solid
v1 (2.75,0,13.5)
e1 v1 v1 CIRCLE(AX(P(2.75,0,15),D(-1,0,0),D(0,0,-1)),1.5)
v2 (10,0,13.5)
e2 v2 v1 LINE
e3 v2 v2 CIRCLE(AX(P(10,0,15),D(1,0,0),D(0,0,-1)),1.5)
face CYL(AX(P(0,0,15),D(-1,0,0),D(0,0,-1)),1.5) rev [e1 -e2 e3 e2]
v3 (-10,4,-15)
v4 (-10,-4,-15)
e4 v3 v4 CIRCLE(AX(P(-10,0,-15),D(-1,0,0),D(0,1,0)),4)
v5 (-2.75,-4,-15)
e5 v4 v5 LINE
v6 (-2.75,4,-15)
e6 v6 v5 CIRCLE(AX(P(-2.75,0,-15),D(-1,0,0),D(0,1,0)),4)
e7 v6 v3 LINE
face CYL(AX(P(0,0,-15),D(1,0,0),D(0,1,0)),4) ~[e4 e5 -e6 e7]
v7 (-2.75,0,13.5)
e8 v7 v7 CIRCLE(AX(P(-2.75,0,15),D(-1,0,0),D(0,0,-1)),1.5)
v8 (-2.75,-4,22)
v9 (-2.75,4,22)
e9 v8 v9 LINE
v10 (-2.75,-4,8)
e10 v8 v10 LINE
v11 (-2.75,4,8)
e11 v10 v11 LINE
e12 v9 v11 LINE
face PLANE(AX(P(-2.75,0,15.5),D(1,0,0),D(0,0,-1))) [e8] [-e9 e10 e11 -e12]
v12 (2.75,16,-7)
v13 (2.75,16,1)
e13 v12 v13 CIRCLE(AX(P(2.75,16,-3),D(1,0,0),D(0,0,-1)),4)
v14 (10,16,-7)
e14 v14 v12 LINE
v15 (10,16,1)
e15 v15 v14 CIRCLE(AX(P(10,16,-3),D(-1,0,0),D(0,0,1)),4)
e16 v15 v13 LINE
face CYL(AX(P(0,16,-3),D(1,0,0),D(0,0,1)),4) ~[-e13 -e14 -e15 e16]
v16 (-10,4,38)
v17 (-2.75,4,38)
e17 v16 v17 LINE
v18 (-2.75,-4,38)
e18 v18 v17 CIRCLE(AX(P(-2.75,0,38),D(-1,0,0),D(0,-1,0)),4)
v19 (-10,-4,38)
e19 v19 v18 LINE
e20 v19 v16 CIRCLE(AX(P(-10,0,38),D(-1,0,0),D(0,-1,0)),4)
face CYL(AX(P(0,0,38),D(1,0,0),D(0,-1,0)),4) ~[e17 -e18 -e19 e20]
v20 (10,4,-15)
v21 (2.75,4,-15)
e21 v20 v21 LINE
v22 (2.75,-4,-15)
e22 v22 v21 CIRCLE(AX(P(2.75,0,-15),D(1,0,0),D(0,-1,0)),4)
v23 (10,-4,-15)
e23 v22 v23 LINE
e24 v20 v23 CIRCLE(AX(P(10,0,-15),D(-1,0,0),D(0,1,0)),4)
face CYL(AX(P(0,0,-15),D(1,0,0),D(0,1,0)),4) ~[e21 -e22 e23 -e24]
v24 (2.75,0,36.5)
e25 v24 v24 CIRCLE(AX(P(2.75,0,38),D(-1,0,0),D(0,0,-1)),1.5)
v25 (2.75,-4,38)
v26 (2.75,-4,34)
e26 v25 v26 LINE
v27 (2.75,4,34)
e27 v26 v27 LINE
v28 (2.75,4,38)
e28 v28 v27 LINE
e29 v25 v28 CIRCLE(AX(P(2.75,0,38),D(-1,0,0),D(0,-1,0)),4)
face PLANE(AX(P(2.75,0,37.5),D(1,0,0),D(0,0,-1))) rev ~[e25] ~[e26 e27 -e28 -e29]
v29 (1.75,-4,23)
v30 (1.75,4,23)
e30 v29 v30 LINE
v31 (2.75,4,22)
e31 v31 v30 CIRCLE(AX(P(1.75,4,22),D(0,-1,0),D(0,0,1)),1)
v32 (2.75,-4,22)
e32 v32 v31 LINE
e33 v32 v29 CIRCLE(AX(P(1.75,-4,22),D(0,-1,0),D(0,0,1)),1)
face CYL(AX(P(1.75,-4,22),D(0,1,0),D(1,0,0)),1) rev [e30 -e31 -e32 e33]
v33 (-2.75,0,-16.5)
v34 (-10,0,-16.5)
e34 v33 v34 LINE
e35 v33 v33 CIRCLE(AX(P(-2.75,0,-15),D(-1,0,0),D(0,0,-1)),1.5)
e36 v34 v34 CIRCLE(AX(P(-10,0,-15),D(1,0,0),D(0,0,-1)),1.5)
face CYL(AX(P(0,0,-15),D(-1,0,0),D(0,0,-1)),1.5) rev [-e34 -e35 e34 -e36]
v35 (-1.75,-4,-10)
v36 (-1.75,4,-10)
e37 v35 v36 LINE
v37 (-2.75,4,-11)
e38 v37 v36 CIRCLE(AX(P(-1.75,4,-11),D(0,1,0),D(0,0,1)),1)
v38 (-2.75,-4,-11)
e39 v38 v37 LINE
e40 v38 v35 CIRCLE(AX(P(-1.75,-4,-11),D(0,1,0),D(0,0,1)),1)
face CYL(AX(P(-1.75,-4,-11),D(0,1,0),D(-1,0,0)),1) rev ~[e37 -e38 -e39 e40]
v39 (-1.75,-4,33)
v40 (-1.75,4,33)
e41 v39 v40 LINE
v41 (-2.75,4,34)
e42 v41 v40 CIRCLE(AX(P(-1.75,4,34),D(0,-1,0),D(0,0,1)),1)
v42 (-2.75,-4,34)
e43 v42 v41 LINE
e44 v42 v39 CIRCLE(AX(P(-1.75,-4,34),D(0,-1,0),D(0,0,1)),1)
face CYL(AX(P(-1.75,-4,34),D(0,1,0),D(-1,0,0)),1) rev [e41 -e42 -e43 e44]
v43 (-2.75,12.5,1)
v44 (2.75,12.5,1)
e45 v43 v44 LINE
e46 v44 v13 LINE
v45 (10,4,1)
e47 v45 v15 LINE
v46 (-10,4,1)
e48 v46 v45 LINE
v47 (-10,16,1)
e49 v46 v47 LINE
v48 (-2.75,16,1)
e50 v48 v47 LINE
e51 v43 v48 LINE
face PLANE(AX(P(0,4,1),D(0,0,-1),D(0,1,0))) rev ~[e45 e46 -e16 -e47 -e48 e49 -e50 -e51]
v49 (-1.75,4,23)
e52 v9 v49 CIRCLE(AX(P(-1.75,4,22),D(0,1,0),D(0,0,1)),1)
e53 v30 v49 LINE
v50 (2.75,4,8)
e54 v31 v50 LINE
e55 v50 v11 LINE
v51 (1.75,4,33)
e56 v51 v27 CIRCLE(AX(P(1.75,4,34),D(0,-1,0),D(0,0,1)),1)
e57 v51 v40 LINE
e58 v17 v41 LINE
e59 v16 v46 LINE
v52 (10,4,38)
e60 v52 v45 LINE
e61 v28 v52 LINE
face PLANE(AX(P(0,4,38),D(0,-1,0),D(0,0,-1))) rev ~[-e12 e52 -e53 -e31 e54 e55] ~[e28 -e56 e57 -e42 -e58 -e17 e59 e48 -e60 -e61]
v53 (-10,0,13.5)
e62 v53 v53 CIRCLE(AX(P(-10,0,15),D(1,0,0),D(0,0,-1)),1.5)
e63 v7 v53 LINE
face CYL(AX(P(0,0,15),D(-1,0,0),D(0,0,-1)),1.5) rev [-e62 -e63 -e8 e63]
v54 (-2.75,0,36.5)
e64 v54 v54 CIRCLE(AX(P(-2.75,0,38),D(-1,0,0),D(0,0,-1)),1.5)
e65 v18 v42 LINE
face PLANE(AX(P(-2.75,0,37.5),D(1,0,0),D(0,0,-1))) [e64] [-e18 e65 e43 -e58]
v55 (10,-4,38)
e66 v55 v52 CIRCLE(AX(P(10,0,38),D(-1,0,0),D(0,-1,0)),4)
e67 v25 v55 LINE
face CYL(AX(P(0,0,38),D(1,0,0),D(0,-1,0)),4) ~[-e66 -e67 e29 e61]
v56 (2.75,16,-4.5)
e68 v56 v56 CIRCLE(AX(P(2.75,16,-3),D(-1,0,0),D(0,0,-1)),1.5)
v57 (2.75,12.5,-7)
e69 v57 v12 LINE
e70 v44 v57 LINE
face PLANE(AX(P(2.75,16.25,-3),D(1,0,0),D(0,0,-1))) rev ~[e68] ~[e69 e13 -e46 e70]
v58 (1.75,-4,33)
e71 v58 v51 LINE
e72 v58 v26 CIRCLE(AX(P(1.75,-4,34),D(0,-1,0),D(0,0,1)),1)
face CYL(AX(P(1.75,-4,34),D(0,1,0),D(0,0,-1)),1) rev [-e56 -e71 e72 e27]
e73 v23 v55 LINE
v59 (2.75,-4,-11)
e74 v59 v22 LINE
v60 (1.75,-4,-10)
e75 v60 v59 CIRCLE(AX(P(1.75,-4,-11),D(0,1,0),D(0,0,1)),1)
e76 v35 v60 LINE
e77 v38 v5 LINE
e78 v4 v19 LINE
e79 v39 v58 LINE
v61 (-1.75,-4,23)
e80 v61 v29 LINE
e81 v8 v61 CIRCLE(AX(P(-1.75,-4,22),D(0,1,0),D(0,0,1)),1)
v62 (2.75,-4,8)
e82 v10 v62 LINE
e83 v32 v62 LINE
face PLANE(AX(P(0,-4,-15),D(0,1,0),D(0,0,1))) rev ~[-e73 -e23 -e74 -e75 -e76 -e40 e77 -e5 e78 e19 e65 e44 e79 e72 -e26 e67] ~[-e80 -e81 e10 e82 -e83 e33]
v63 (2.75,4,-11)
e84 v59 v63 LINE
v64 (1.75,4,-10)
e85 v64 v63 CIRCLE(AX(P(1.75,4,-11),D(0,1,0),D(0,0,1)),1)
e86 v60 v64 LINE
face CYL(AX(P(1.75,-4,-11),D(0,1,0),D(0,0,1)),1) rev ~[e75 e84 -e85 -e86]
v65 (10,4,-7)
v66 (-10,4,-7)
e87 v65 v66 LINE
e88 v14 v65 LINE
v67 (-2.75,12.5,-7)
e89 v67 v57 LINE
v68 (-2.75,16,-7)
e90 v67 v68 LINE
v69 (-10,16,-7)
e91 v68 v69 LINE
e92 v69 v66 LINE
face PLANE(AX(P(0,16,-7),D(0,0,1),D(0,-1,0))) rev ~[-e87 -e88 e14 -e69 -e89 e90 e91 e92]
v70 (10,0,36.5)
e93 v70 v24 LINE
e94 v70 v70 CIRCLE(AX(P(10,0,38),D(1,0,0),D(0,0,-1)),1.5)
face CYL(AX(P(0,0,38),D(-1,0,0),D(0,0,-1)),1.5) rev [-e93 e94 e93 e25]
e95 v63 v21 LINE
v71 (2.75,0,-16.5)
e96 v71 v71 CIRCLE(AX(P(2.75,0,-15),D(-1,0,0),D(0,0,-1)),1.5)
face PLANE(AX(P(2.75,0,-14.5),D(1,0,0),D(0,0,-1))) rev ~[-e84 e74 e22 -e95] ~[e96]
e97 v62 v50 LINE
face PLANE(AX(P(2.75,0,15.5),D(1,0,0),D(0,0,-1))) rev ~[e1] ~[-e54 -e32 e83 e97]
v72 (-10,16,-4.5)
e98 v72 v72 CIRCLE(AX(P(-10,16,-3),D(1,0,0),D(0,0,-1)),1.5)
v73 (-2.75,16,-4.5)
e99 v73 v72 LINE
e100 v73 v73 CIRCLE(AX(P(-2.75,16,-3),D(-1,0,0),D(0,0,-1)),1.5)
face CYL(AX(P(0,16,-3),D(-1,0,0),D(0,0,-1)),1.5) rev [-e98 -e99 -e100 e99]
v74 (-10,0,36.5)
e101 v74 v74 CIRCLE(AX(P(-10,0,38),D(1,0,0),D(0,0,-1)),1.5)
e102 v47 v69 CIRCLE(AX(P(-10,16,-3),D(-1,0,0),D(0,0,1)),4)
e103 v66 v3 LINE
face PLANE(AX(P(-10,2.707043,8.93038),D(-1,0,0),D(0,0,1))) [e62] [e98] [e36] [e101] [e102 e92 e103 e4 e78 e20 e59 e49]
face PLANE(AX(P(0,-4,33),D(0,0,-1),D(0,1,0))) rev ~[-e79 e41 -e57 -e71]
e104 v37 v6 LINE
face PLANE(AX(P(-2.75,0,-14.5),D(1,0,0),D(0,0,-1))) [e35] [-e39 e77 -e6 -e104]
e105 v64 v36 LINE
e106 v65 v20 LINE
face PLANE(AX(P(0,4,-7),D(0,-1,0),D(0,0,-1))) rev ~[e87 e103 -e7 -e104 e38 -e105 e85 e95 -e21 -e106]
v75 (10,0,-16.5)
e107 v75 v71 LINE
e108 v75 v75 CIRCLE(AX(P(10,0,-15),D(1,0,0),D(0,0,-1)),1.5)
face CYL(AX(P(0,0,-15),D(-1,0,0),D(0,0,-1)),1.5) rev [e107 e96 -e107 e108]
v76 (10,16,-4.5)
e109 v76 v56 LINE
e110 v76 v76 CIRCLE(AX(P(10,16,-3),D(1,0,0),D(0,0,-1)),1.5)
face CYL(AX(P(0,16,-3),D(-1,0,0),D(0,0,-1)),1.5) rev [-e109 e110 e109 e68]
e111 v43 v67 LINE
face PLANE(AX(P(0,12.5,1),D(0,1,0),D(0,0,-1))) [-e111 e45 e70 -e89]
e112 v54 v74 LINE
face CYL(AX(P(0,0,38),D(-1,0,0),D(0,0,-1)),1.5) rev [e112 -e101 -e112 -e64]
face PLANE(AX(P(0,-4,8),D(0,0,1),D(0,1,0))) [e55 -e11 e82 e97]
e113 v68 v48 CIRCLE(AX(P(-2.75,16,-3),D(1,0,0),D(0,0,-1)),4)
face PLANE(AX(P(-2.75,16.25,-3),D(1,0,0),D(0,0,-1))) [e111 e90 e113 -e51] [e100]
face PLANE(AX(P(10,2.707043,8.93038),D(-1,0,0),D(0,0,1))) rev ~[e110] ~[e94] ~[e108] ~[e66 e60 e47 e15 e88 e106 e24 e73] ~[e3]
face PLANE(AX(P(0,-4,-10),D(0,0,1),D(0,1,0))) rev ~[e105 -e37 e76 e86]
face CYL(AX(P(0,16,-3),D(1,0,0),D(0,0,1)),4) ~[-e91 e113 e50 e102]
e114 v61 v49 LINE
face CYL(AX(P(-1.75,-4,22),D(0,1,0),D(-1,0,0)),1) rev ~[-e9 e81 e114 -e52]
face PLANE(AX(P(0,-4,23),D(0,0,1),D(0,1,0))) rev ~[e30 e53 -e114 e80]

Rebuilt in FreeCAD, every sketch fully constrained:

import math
import FreeCAD as App
import Part
import Sketcher

V = App.Vector
Q = App.Units.Quantity


def edges_at(feature, points):
    """Names of the edges that pass closest to the given points."""
    edges = feature.Shape.Edges
    near = lambda p: min(range(len(edges)), key=lambda i: edges[i].distToShape(Part.Vertex(*p))[0])
    return sorted({f"Edge{near(p) + 1}" for p in points})

doc = App.newDocument("Part")
body = doc.addObject("PartDesign::Body", "Body")

sketch1 = doc.addObject("Sketcher::SketchObject", "Sketch")
body.addObject(sketch1)
sketch1.AttachmentSupport = (doc.YZ_Plane, [""])
sketch1.MapMode = "FlatFace"
sketch1.addGeometry([
    Part.LineSegment(V(16, 1, 0), V(4, 1, 0)),
    Part.LineSegment(V(4, 1, 0), V(4, 38, 0)),
    Part.ArcOfCircle(Part.Circle(V(0, 38, 0), V(0, 0, 1), 4), math.radians(0), math.radians(180)),
    Part.LineSegment(V(-4, 38, 0), V(-4, -15, 0)),
    Part.ArcOfCircle(Part.Circle(V(0, -15, 0), V(0, 0, 1), 4), math.radians(180), math.radians(360)),
    Part.LineSegment(V(4, -15, 0), V(4, -7, 0)),
    Part.LineSegment(V(4, -7, 0), V(16, -7, 0)),
    Part.ArcOfCircle(Part.Circle(V(16, -3, 0), V(0, 0, 1), 4), math.radians(-90), math.radians(90)),
    Part.Circle(V(0, -15, 0), V(0, 0, 1), 1.5),
    Part.Circle(V(0, 15, 0), V(0, 0, 1), 1.5),
    Part.Circle(V(0, 38, 0), V(0, 0, 1), 1.5),
    Part.Circle(V(16, -3, 0), V(0, 0, 1), 1.5),
], False)
sketch1.addConstraint([
    Sketcher.Constraint("Coincident", 0, 2, 1, 1),
    Sketcher.Constraint("Tangent", 1, 2, 2, 1),
    Sketcher.Constraint("Tangent", 2, 2, 3, 1),
    Sketcher.Constraint("Tangent", 3, 2, 4, 1),
    Sketcher.Constraint("Tangent", 4, 2, 5, 1),
    Sketcher.Constraint("Coincident", 5, 2, 6, 1),
    Sketcher.Constraint("Tangent", 6, 2, 7, 1),
    Sketcher.Constraint("Tangent", 7, 2, 0, 1),
    Sketcher.Constraint("Horizontal", 0),
    Sketcher.Constraint("Vertical", 1),
    Sketcher.Constraint("Vertical", 3),
    Sketcher.Constraint("Vertical", 5),
    Sketcher.Constraint("Horizontal", 6),
    Sketcher.Constraint("Coincident", 8, 3, 4, 3),
    Sketcher.Constraint("Coincident", 10, 3, 2, 3),
    Sketcher.Constraint("Coincident", 11, 3, 7, 3),
    Sketcher.Constraint("Equal", 2, 4),
    Sketcher.Constraint("Equal", 4, 7),
    Sketcher.Constraint("Equal", 8, 9),
    Sketcher.Constraint("Equal", 9, 10),
    Sketcher.Constraint("Equal", 10, 11),
    Sketcher.Constraint("Symmetric", 4, 3, 9, 3, -1, 1),
    Sketcher.Constraint("PointOnObject", 2, 3, -2),
    Sketcher.Constraint("Diameter", 8, Q("3 mm")),
    Sketcher.Constraint("Radius", 2, Q("4 mm")),
    Sketcher.Constraint("DistanceX", 0, 2, 0, 1, Q("12 mm")),
    Sketcher.Constraint("DistanceY", 1, 1, 1, 2, Q("37 mm")),
    Sketcher.Constraint("DistanceY", 3, 2, 3, 1, Q("53 mm")),
    Sketcher.Constraint("DistanceY", -1, 1, 2, 3, Q("38 mm")),
])
pad1 = doc.addObject("PartDesign::Pad", "Pad")
body.addObject(pad1)
pad1.Profile = sketch1
pad1.Length = 20
pad1.Midplane = True

sketch2 = doc.addObject("Sketcher::SketchObject", "Sketch001")
body.addObject(sketch2)
sketch2.AttachmentSupport = (doc.YZ_Plane, [""])
sketch2.MapMode = "FlatFace"
sketch2.addGeometry([
    Part.LineSegment(V(20, 1, 0), V(12.5, 1, 0)),
    Part.LineSegment(V(12.5, 1, 0), V(12.5, -7, 0)),
    Part.LineSegment(V(12.5, -7, 0), V(20, -7, 0)),
    Part.LineSegment(V(20, -7, 0), V(20, 1, 0)),
    Part.LineSegment(V(4, 23, 0), V(-4, 23, 0)),
    Part.LineSegment(V(-4, 23, 0), V(-4, 8, 0)),
    Part.LineSegment(V(-4, 8, 0), V(4, 8, 0)),
    Part.LineSegment(V(4, 8, 0), V(4, 23, 0)),
    Part.LineSegment(V(4, -10, 0), V(-4, -10, 0)),
    Part.LineSegment(V(-4, -10, 0), V(-4, -19, 0)),
    Part.LineSegment(V(-4, -19, 0), V(4, -19, 0)),
    Part.LineSegment(V(4, -19, 0), V(4, -10, 0)),
    Part.LineSegment(V(4, 42, 0), V(-4, 42, 0)),
    Part.LineSegment(V(-4, 42, 0), V(-4, 33, 0)),
    Part.LineSegment(V(-4, 33, 0), V(4, 33, 0)),
    Part.LineSegment(V(4, 33, 0), V(4, 42, 0)),
], False)
sketch2.addConstraint([
    Sketcher.Constraint("Coincident", 0, 2, 1, 1),
    Sketcher.Constraint("Coincident", 1, 2, 2, 1),
    Sketcher.Constraint("Coincident", 2, 2, 3, 1),
    Sketcher.Constraint("Coincident", 3, 2, 0, 1),
    Sketcher.Constraint("Coincident", 4, 2, 5, 1),
    Sketcher.Constraint("Coincident", 5, 2, 6, 1),
    Sketcher.Constraint("Coincident", 6, 2, 7, 1),
    Sketcher.Constraint("Coincident", 7, 2, 4, 1),
    Sketcher.Constraint("Coincident", 8, 2, 9, 1),
    Sketcher.Constraint("Coincident", 9, 2, 10, 1),
    Sketcher.Constraint("Coincident", 10, 2, 11, 1),
    Sketcher.Constraint("Coincident", 11, 2, 8, 1),
    Sketcher.Constraint("Coincident", 12, 2, 13, 1),
    Sketcher.Constraint("Coincident", 13, 2, 14, 1),
    Sketcher.Constraint("Coincident", 14, 2, 15, 1),
    Sketcher.Constraint("Coincident", 15, 2, 12, 1),
    Sketcher.Constraint("Horizontal", 0),
    Sketcher.Constraint("Vertical", 1),
    Sketcher.Constraint("Horizontal", 2),
    Sketcher.Constraint("Vertical", 3),
    Sketcher.Constraint("Horizontal", 4),
    Sketcher.Constraint("Vertical", 5),
    Sketcher.Constraint("Horizontal", 6),
    Sketcher.Constraint("Vertical", 7),
    Sketcher.Constraint("Horizontal", 8),
    Sketcher.Constraint("Vertical", 9),
    Sketcher.Constraint("Horizontal", 10),
    Sketcher.Constraint("Vertical", 11),
    Sketcher.Constraint("Horizontal", 12),
    Sketcher.Constraint("Vertical", 13),
    Sketcher.Constraint("Horizontal", 14),
    Sketcher.Constraint("Vertical", 15),
    Sketcher.Constraint("Vertical", 5, 2, 8, 2),
    Sketcher.Constraint("Vertical", 7, 2, 10, 2),
    Sketcher.Constraint("Vertical", 9, 2, 12, 2),
    Sketcher.Constraint("Vertical", 11, 2, 14, 2),
    Sketcher.Constraint("Equal", 14, 1),
    Sketcher.Constraint("Equal", 11, 13),
    Sketcher.Constraint("DistanceX", 4, 2, 4, 1, Q("8 mm")),
    Sketcher.Constraint("DistanceY", 5, 2, 5, 1, Q("15 mm")),
    Sketcher.Constraint("DistanceY", 9, 2, 9, 1, Q("9 mm")),
    Sketcher.Constraint("DistanceX", 0, 2, 0, 1, Q("7.5 mm")),
    Sketcher.Constraint("DistanceY", -1, 1, 0, 2, Q("1 mm")),
    Sketcher.Constraint("DistanceX", -1, 1, 2, 2, Q("20 mm")),
    Sketcher.Constraint("DistanceX", 4, 2, -1, 1, Q("4 mm")),
    Sketcher.Constraint("DistanceY", -1, 1, 4, 2, Q("23 mm")),
    Sketcher.Constraint("DistanceY", 8, 2, -1, 1, Q("10 mm")),
    Sketcher.Constraint("DistanceY", -1, 1, 12, 2, Q("42 mm")),
])
pocket1 = doc.addObject("PartDesign::Pocket", "Pocket")
body.addObject(pocket1)
pocket1.Profile = sketch2
pocket1.Length = 5.5
pocket1.Midplane = True
doc.recompute()

fillet = doc.addObject("PartDesign::Fillet", "Fillet")
body.addObject(fillet)
fillet.Base = (pocket1, edges_at(pocket1, [
    (2.75, 0, -10),
    (-2.75, 0, -10),
    (-2.75, 0, 23),
    (2.75, 0, 23),
    (2.75, 0, 33),
    (-2.75, 0, 33),
]))
fillet.Radius = 1

doc.recompute()
